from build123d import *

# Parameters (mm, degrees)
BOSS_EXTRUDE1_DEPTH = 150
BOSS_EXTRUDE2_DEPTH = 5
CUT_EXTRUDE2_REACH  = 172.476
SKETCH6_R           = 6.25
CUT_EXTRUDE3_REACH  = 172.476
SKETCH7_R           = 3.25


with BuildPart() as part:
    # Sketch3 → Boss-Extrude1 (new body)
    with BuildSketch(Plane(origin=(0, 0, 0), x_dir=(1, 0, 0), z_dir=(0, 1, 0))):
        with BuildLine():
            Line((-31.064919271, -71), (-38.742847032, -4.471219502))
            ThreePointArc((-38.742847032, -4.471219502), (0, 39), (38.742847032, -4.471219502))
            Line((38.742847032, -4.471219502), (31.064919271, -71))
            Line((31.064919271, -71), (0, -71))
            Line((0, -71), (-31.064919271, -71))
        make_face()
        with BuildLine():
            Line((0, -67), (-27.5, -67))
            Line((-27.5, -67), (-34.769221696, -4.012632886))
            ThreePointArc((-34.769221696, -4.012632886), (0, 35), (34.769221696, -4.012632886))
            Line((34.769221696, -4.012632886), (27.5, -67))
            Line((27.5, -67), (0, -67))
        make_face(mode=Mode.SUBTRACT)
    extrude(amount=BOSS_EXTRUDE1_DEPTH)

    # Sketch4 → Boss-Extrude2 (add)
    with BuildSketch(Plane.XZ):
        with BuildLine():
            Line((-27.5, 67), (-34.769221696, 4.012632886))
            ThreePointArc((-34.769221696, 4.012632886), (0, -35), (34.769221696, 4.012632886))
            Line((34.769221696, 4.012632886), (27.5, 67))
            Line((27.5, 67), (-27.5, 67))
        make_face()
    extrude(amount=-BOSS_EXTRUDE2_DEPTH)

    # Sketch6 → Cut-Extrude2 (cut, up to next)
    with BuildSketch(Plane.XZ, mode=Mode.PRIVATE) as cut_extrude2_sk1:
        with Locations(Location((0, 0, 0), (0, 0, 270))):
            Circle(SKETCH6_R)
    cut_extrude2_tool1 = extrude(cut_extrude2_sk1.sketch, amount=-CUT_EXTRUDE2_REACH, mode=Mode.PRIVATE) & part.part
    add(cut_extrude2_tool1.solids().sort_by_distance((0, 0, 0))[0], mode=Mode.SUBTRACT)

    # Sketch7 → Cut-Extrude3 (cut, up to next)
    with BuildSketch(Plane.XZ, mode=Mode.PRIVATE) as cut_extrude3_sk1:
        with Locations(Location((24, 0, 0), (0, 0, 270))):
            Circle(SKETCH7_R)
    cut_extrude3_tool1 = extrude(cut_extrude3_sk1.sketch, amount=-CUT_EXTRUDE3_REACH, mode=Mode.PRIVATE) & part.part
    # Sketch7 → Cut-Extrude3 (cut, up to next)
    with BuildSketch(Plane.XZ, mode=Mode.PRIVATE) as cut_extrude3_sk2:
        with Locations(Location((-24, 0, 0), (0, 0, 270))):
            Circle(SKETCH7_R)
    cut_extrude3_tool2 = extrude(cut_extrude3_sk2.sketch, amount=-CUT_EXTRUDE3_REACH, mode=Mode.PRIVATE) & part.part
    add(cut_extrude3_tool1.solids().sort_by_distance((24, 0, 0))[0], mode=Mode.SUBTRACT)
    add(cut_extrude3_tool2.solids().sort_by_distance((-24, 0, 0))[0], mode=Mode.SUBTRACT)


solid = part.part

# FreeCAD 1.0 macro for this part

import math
import FreeCAD as App
import Part
import Sketcher
from FreeCAD import Vector
Q = App.Units.Quantity

doc = App.newDocument("Part")
body = doc.addObject("PartDesign::Body", "Body")

sketch1 = body.newObject("Sketcher::SketchObject", "Sketch")
sketch1.AttachmentSupport = (doc.getObject("XZ_Plane"), [""])
sketch1.MapMode = "FlatFace"
sketch1.addGeometry([
    Part.LineSegment(Vector(-38.742847, 4.47122, 0), Vector(-31.064919, 71, 0)),
    Part.LineSegment(Vector(-31.064919, 71, 0), Vector(31.064919, 71, 0)),
    Part.LineSegment(Vector(31.064919, 71, 0), Vector(38.742847, 4.47122, 0)),
    Part.ArcOfCircle(Part.Circle(Vector(0, 0, 0), Vector(0, 0, 1), 39), math.radians(173.416755), math.radians(366.583245)),
    Part.LineSegment(Vector(-27.5, 67, 0), Vector(-34.769222, 4.012633, 0)),
    Part.ArcOfCircle(Part.Circle(Vector(0, 0, 0), Vector(0, 0, 1), 35), math.radians(173.416755), math.radians(366.583245)),
    Part.LineSegment(Vector(34.769222, 4.012633, 0), Vector(27.5, 67, 0)),
    Part.LineSegment(Vector(27.5, 67, 0), Vector(-27.5, 67, 0)),
], False)
sketch1.addConstraint([
    Sketcher.Constraint("Coincident", 0, 2, 1, 1),
    Sketcher.Constraint("Coincident", 1, 2, 2, 1),
    Sketcher.Constraint("Tangent", 2, 2, 3, 2),
    Sketcher.Constraint("Tangent", 3, 1, 0, 1),
    Sketcher.Constraint("Tangent", 4, 2, 5, 1),
    Sketcher.Constraint("Tangent", 5, 2, 6, 1),
    Sketcher.Constraint("Coincident", 6, 2, 7, 1),
    Sketcher.Constraint("Coincident", 7, 2, 4, 1),
    Sketcher.Constraint("Horizontal", 1),
    Sketcher.Constraint("Horizontal", 7),
    Sketcher.Constraint("Coincident", 3, 3, -1, 1),
    Sketcher.Constraint("Coincident", 5, 3, -1, 1),
    Sketcher.Constraint("Parallel", 0, 4),
    Sketcher.Constraint("Parallel", 2, 6),
    Sketcher.Constraint("Horizontal", 2, 2, 3, 1),
    Sketcher.Constraint("Radius", 3, Q("39 mm")),
    Sketcher.Constraint("Radius", 5, Q("35 mm")),
    Sketcher.Constraint("DistanceX", 7, 2, 7, 1, Q("55 mm")),
    Sketcher.Constraint("DistanceY", -1, 1, 0, 2, Q("71 mm")),
    Sketcher.Constraint("DistanceY", -1, 1, 6, 2, Q("67 mm")),
])
pad1 = body.newObject("PartDesign::Pad", "Pad")
pad1.Profile = sketch1
pad1.Length = 150
pad1.Reversed = True

sketch2 = body.newObject("Sketcher::SketchObject", "Sketch001")
sketch2.AttachmentSupport = (doc.getObject("XZ_Plane"), [""])
sketch2.MapMode = "FlatFace"
sketch2.addGeometry([
    Part.LineSegment(Vector(-27.5, 67, 0), Vector(-34.769222, 4.012633, 0)),
    Part.ArcOfCircle(Part.Circle(Vector(0, 0, 0), Vector(0, 0, 1), 35), math.radians(173.416755), math.radians(366.583245)),
    Part.LineSegment(Vector(34.769222, 4.012633, 0), Vector(27.5, 67, 0)),
    Part.LineSegment(Vector(27.5, 67, 0), Vector(-27.5, 67, 0)),
], False)
sketch2.addConstraint([
    Sketcher.Constraint("Tangent", 0, 2, 1, 1),
    Sketcher.Constraint("Tangent", 1, 2, 2, 1),
    Sketcher.Constraint("Coincident", 2, 2, 3, 1),
    Sketcher.Constraint("Coincident", 3, 2, 0, 1),
    Sketcher.Constraint("Horizontal", 3),
    Sketcher.Constraint("Coincident", 1, 3, -1, 1),
    Sketcher.Constraint("Horizontal", 0, 2, 1, 2),
    Sketcher.Constraint("Radius", 1, Q("35 mm")),
    Sketcher.Constraint("DistanceX", 3, 2, 3, 1, Q("55 mm")),
    Sketcher.Constraint("DistanceY", -1, 1, 2, 2, Q("67 mm")),
])
pad2 = body.newObject("PartDesign::Pad", "Pad001")
pad2.Profile = sketch2
pad2.Length = 5
pad2.Reversed = True

sketch3 = body.newObject("Sketcher::SketchObject", "Sketch002")
sketch3.AttachmentSupport = (doc.getObject("XZ_Plane"), [""])
sketch3.MapMode = "FlatFace"
sketch3.addGeometry(Part.Circle(Vector(0, 0, 0), Vector(0, 0, 1), 6.25), False)
sketch3.addConstraint([
    Sketcher.Constraint("Coincident", 0, 3, -1, 1),
    Sketcher.Constraint("Diameter", 0, Q("12.5 mm")),
])
pocket1 = body.newObject("PartDesign::Pocket", "Pocket")
pocket1.Profile = sketch3
pocket1.Type = "UpToFirst"

sketch4 = body.newObject("Sketcher::SketchObject", "Sketch003")
sketch4.AttachmentSupport = (doc.getObject("XZ_Plane"), [""])
sketch4.MapMode = "FlatFace"
sketch4.addGeometry(Part.Circle(Vector(24, 0, 0), Vector(0, 0, 1), 3.25), False)
sketch4.addConstraint([
    Sketcher.Constraint("PointOnObject", 0, 3, -1),
    Sketcher.Constraint("Diameter", 0, Q("6.5 mm")),
    Sketcher.Constraint("DistanceX", -1, 1, 0, 3, Q("24 mm")),
])
pocket2 = body.newObject("PartDesign::Pocket", "Pocket001")
pocket2.Profile = sketch4
pocket2.Type = "UpToFirst"

sketch5 = body.newObject("Sketcher::SketchObject", "Sketch004")
sketch5.AttachmentSupport = (doc.getObject("XZ_Plane"), [""])
sketch5.MapMode = "FlatFace"
sketch5.addGeometry(Part.Circle(Vector(-24, 0, 0), Vector(0, 0, 1), 3.25), False)
sketch5.addConstraint([
    Sketcher.Constraint("PointOnObject", 0, 3, -1),
    Sketcher.Constraint("Diameter", 0, Q("6.5 mm")),
    Sketcher.Constraint("DistanceX", 0, 3, -1, 1, Q("24 mm")),
])
pocket3 = body.newObject("PartDesign::Pocket", "Pocket002")
pocket3.Profile = sketch5
pocket3.Type = "UpToFirst"

doc.recompute()
